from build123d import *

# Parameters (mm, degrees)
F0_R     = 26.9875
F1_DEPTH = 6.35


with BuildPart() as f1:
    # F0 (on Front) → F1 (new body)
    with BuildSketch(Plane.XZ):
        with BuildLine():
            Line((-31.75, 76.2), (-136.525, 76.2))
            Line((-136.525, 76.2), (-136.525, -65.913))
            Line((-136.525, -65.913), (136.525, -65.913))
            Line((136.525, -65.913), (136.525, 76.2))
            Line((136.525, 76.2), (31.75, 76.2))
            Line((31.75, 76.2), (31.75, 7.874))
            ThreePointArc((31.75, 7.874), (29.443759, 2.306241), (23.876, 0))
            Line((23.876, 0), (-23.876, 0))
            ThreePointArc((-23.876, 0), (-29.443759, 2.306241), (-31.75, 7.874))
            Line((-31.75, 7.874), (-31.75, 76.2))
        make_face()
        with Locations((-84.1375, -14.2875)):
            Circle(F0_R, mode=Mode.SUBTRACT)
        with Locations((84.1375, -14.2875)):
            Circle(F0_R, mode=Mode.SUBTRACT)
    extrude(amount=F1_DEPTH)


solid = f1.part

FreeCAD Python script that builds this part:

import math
import FreeCAD as App
import Part
import Sketcher
Q = App.Units.Quantity

doc = App.newDocument("Part")
params = doc.addObject("Spreadsheet::Sheet", "Params")
for row, (alias, value) in enumerate([
    ("sketch1_radius", "0.31 in"),
    ("sketch1_diameter", "2.125 in"),
    ("sketch1_width", "10.75 in"),
    ("sketch1_width2", "1.88 in"),
    ("sketch1_height", "5.595 in"),
    ("pad1_length", "0.25 in"),
], start=1):
    params.set(f"A{row}", alias)
    params.set(f"B{row}", "=" + value)
    params.setAlias(f"B{row}", alias)

body = doc.addObject("PartDesign::Body", "Body")

# Sketch on XZ plane
sketch1 = doc.addObject("Sketcher::SketchObject", "Sketch")
body.addObject(sketch1)
sketch1.AttachmentSupport = (doc.XZ_Plane, [""])
sketch1.MapMode = "FlatFace"
sketch1.addGeometry([
    Part.LineSegment(App.Vector(-31.75, 76.2, 0), App.Vector(-136.525, 76.2, 0)),  # 0
    Part.LineSegment(App.Vector(-136.525, 76.2, 0), App.Vector(-136.525, -65.913, 0)),  # 1
    Part.LineSegment(App.Vector(-136.525, -65.913, 0), App.Vector(136.525, -65.913, 0)),  # 2
    Part.LineSegment(App.Vector(136.525, -65.913, 0), App.Vector(136.525, 76.2, 0)),  # 3
    Part.LineSegment(App.Vector(136.525, 76.2, 0), App.Vector(31.75, 76.2, 0)),  # 4
    Part.LineSegment(App.Vector(31.75, 76.2, 0), App.Vector(31.75, 7.874, 0)),  # 5
    Part.ArcOfCircle(Part.Circle(App.Vector(23.876001, 7.873999, 0), App.Vector(0, 0, 1), 7.873999), math.radians(-90.000005), math.radians(0.000005)),  # 6
    Part.LineSegment(App.Vector(23.876, 0, 0), App.Vector(-23.876, 0, 0)),  # 7
    Part.ArcOfCircle(Part.Circle(App.Vector(-23.876001, 7.873999, 0), App.Vector(0, 0, 1), 7.873999), math.radians(179.999995), math.radians(270.000005)),  # 8
    Part.LineSegment(App.Vector(-31.75, 7.874, 0), App.Vector(-31.75, 76.2, 0)),  # 9
    Part.Circle(App.Vector(-84.1375, -14.2875, 0), App.Vector(0, 0, 1), 26.9875),  # 10
    Part.Circle(App.Vector(84.1375, -14.2875, 0), App.Vector(0, 0, 1), 26.9875),  # 11
], False)
sketch1.addConstraint([
    Sketcher.Constraint("Coincident", 0, 2, 1, 1),
    Sketcher.Constraint("Coincident", 1, 2, 2, 1),
    Sketcher.Constraint("Coincident", 2, 2, 3, 1),
    Sketcher.Constraint("Coincident", 3, 2, 4, 1),
    Sketcher.Constraint("Coincident", 4, 2, 5, 1),
    Sketcher.Constraint("Tangent", 5, 2, 6, 2),
    Sketcher.Constraint("Tangent", 6, 1, 7, 1),
    Sketcher.Constraint("Tangent", 7, 2, 8, 2),
    Sketcher.Constraint("Tangent", 8, 1, 9, 1),
    Sketcher.Constraint("Coincident", 9, 2, 0, 1),
    Sketcher.Constraint("Horizontal", 0),
    Sketcher.Constraint("Vertical", 1),
    Sketcher.Constraint("Horizontal", 2),
    Sketcher.Constraint("Vertical", 3),
    Sketcher.Constraint("Horizontal", 4),
    Sketcher.Constraint("Vertical", 5),
    Sketcher.Constraint("Horizontal", 7),
    Sketcher.Constraint("Vertical", 9),
    Sketcher.Constraint("Equal", 6, 8),
    Sketcher.Constraint("Equal", 10, 11),
    Sketcher.Constraint("Symmetric", 6, 1, 7, 2, -1, 1),
    Sketcher.Constraint("Symmetric", 10, 3, 11, 3, -2),
    Sketcher.Constraint("Symmetric", 0, 2, 3, 2, -2),
    Sketcher.Constraint("Radius", 6, Q("0.31 in")),
    Sketcher.Constraint("Diameter", 10, Q("2.125 in")),
    Sketcher.Constraint("DistanceY", -1, 1, 0, 2, Q("3 in")),
    Sketcher.Constraint("DistanceX", 2, 1, 2, 2, Q("10.75 in")),
    Sketcher.Constraint("DistanceX", 7, 2, 7, 1, Q("1.88 in")),
    Sketcher.Constraint("DistanceY", 1, 2, 1, 1, Q("5.595 in")),
    Sketcher.Constraint("DistanceX", 10, 3, -1, 1, Q("3.3125 in")),
    Sketcher.Constraint("DistanceY", 10, 3, -1, 1, Q("0.5625 in")),
])
sketch1.setExpression("Constraints[23]", "Params.sketch1_radius")
sketch1.setExpression("Constraints[24]", "Params.sketch1_diameter")
sketch1.setExpression("Constraints[26]", "Params.sketch1_width")
sketch1.setExpression("Constraints[27]", "Params.sketch1_width2")
sketch1.setExpression("Constraints[28]", "Params.sketch1_height")
pad1 = doc.addObject("PartDesign::Pad", "Pad")
body.addObject(pad1)
pad1.Profile = sketch1
pad1.setExpression("Length", "Params.pad1_length")

doc.recompute()
